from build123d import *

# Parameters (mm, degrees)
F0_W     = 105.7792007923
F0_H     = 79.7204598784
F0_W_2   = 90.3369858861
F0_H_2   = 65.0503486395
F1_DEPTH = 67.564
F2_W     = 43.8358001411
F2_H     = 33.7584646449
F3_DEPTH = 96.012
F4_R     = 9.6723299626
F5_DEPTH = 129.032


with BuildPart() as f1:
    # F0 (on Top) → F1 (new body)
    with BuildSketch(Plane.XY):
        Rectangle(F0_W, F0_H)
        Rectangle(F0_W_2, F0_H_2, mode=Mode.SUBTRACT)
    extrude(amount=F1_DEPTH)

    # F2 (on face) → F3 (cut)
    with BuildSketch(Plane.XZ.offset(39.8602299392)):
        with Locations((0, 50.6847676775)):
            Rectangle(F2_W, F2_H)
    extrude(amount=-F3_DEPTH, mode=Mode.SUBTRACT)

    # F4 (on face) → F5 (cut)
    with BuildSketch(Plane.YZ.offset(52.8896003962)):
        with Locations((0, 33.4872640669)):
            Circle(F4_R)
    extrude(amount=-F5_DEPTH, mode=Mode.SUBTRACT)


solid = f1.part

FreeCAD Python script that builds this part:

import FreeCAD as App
import Part
import Sketcher

V = App.Vector
Q = App.Units.Quantity


def add_polygon(sketch, points):
    """Adds a closed chain of lines whose ends are joined by coincident constraints."""
    first, n = sketch.GeometryCount, len(points)
    for a, b in zip(points, points[1:] + points[:1]):
        sketch.addGeometry(Part.LineSegment(App.Vector(*a, 0), App.Vector(*b, 0)), False)
    for i in range(n):
        sketch.addConstraint(Sketcher.Constraint("Coincident", first + i, 2, first + (i + 1) % n, 1))

doc = App.newDocument("Part")
body = doc.addObject("PartDesign::Body", "Body")

# Sketch on XY plane
sketch1 = body.newObject("Sketcher::SketchObject", "Sketch")
sketch1.AttachmentSupport = (doc.getObject("XY_Plane"), [""])
sketch1.MapMode = "FlatFace"
add_polygon(sketch1, [(-53, 40), (-53, -40), (53, -40), (53, 40)])  # lines 0-3
add_polygon(sketch1, [(45, -33), (-45, -33), (-45, 33), (45, 33)])  # lines 4-7
sketch1.addConstraint([
    Sketcher.Constraint("Vertical", 0),
    Sketcher.Constraint("Horizontal", 1),
    Sketcher.Constraint("Vertical", 2),
    Sketcher.Constraint("Horizontal", 3),
    Sketcher.Constraint("Horizontal", 4),
    Sketcher.Constraint("Vertical", 5),
    Sketcher.Constraint("Horizontal", 6),
    Sketcher.Constraint("Vertical", 7),
    Sketcher.Constraint("Symmetric", 0, 2, 2, 2, -1, 1),
    Sketcher.Constraint("Symmetric", 4, 2, 6, 2, -1, 1),
    Sketcher.Constraint("DistanceX", 1, 1, 1, 2, 105.779201),
    Sketcher.Constraint("DistanceY", 0, 2, 0, 1, 79.72046),
    Sketcher.Constraint("DistanceY", 5, 1, 5, 2, 65.050349),
    Sketcher.Constraint("DistanceX", 4, 2, 4, 1, 90.336986),
])
pad1 = body.newObject("PartDesign::Pad", "Pad")
pad1.Profile = sketch1
pad1.Length = Q("2.66 in")

# Sketch on XZ plane
sketch2 = body.newObject("Sketcher::SketchObject", "Sketch001")
sketch2.AttachmentSupport = (doc.getObject("XZ_Plane"), [""])
sketch2.MapMode = "FlatFace"
sketch2.AttachmentOffset = App.Placement(V(0, 0, 39.86023), App.Rotation())
add_polygon(sketch2, [(-22, 68), (-22, 34), (22, 34), (22, 68)])  # lines 0-3
sketch2.addConstraint([
    Sketcher.Constraint("Vertical", 0),
    Sketcher.Constraint("Horizontal", 1),
    Sketcher.Constraint("Vertical", 2),
    Sketcher.Constraint("Horizontal", 3),
    Sketcher.Constraint("DistanceY", -1, 1, 2, 2, Q("2.66 in")),
    Sketcher.Constraint("DistanceX", 1, 1, 1, 2, 43.8358),
    Sketcher.Constraint("DistanceX", 0, 2, -1, 1, 21.9179),
    Sketcher.Constraint("DistanceY", 0, 2, 0, 1, 33.758465),
])
pocket1 = body.newObject("PartDesign::Pocket", "Pocket")
pocket1.Profile = sketch2
pocket1.Length = Q("3.78 in")

# Sketch on YZ plane
sketch3 = body.newObject("Sketcher::SketchObject", "Sketch002")
sketch3.AttachmentSupport = (doc.getObject("YZ_Plane"), [""])
sketch3.MapMode = "FlatFace"
sketch3.AttachmentOffset = App.Placement(V(0, 0, 52.8896), App.Rotation())
sketch3.addGeometry(Part.Circle(V(0, 33, 0), V(0, 0, 1), 10), False)
sketch3.addConstraint([
    Sketcher.Constraint("PointOnObject", 0, 3, -2),
    Sketcher.Constraint("Diameter", 0, 19.34466),
    Sketcher.Constraint("DistanceY", -1, 1, 0, 3, 33.487264),
])
pocket2 = body.newObject("PartDesign::Pocket", "Pocket001")
pocket2.Profile = sketch3
pocket2.Length = Q("5.08 in")

doc.recompute()
